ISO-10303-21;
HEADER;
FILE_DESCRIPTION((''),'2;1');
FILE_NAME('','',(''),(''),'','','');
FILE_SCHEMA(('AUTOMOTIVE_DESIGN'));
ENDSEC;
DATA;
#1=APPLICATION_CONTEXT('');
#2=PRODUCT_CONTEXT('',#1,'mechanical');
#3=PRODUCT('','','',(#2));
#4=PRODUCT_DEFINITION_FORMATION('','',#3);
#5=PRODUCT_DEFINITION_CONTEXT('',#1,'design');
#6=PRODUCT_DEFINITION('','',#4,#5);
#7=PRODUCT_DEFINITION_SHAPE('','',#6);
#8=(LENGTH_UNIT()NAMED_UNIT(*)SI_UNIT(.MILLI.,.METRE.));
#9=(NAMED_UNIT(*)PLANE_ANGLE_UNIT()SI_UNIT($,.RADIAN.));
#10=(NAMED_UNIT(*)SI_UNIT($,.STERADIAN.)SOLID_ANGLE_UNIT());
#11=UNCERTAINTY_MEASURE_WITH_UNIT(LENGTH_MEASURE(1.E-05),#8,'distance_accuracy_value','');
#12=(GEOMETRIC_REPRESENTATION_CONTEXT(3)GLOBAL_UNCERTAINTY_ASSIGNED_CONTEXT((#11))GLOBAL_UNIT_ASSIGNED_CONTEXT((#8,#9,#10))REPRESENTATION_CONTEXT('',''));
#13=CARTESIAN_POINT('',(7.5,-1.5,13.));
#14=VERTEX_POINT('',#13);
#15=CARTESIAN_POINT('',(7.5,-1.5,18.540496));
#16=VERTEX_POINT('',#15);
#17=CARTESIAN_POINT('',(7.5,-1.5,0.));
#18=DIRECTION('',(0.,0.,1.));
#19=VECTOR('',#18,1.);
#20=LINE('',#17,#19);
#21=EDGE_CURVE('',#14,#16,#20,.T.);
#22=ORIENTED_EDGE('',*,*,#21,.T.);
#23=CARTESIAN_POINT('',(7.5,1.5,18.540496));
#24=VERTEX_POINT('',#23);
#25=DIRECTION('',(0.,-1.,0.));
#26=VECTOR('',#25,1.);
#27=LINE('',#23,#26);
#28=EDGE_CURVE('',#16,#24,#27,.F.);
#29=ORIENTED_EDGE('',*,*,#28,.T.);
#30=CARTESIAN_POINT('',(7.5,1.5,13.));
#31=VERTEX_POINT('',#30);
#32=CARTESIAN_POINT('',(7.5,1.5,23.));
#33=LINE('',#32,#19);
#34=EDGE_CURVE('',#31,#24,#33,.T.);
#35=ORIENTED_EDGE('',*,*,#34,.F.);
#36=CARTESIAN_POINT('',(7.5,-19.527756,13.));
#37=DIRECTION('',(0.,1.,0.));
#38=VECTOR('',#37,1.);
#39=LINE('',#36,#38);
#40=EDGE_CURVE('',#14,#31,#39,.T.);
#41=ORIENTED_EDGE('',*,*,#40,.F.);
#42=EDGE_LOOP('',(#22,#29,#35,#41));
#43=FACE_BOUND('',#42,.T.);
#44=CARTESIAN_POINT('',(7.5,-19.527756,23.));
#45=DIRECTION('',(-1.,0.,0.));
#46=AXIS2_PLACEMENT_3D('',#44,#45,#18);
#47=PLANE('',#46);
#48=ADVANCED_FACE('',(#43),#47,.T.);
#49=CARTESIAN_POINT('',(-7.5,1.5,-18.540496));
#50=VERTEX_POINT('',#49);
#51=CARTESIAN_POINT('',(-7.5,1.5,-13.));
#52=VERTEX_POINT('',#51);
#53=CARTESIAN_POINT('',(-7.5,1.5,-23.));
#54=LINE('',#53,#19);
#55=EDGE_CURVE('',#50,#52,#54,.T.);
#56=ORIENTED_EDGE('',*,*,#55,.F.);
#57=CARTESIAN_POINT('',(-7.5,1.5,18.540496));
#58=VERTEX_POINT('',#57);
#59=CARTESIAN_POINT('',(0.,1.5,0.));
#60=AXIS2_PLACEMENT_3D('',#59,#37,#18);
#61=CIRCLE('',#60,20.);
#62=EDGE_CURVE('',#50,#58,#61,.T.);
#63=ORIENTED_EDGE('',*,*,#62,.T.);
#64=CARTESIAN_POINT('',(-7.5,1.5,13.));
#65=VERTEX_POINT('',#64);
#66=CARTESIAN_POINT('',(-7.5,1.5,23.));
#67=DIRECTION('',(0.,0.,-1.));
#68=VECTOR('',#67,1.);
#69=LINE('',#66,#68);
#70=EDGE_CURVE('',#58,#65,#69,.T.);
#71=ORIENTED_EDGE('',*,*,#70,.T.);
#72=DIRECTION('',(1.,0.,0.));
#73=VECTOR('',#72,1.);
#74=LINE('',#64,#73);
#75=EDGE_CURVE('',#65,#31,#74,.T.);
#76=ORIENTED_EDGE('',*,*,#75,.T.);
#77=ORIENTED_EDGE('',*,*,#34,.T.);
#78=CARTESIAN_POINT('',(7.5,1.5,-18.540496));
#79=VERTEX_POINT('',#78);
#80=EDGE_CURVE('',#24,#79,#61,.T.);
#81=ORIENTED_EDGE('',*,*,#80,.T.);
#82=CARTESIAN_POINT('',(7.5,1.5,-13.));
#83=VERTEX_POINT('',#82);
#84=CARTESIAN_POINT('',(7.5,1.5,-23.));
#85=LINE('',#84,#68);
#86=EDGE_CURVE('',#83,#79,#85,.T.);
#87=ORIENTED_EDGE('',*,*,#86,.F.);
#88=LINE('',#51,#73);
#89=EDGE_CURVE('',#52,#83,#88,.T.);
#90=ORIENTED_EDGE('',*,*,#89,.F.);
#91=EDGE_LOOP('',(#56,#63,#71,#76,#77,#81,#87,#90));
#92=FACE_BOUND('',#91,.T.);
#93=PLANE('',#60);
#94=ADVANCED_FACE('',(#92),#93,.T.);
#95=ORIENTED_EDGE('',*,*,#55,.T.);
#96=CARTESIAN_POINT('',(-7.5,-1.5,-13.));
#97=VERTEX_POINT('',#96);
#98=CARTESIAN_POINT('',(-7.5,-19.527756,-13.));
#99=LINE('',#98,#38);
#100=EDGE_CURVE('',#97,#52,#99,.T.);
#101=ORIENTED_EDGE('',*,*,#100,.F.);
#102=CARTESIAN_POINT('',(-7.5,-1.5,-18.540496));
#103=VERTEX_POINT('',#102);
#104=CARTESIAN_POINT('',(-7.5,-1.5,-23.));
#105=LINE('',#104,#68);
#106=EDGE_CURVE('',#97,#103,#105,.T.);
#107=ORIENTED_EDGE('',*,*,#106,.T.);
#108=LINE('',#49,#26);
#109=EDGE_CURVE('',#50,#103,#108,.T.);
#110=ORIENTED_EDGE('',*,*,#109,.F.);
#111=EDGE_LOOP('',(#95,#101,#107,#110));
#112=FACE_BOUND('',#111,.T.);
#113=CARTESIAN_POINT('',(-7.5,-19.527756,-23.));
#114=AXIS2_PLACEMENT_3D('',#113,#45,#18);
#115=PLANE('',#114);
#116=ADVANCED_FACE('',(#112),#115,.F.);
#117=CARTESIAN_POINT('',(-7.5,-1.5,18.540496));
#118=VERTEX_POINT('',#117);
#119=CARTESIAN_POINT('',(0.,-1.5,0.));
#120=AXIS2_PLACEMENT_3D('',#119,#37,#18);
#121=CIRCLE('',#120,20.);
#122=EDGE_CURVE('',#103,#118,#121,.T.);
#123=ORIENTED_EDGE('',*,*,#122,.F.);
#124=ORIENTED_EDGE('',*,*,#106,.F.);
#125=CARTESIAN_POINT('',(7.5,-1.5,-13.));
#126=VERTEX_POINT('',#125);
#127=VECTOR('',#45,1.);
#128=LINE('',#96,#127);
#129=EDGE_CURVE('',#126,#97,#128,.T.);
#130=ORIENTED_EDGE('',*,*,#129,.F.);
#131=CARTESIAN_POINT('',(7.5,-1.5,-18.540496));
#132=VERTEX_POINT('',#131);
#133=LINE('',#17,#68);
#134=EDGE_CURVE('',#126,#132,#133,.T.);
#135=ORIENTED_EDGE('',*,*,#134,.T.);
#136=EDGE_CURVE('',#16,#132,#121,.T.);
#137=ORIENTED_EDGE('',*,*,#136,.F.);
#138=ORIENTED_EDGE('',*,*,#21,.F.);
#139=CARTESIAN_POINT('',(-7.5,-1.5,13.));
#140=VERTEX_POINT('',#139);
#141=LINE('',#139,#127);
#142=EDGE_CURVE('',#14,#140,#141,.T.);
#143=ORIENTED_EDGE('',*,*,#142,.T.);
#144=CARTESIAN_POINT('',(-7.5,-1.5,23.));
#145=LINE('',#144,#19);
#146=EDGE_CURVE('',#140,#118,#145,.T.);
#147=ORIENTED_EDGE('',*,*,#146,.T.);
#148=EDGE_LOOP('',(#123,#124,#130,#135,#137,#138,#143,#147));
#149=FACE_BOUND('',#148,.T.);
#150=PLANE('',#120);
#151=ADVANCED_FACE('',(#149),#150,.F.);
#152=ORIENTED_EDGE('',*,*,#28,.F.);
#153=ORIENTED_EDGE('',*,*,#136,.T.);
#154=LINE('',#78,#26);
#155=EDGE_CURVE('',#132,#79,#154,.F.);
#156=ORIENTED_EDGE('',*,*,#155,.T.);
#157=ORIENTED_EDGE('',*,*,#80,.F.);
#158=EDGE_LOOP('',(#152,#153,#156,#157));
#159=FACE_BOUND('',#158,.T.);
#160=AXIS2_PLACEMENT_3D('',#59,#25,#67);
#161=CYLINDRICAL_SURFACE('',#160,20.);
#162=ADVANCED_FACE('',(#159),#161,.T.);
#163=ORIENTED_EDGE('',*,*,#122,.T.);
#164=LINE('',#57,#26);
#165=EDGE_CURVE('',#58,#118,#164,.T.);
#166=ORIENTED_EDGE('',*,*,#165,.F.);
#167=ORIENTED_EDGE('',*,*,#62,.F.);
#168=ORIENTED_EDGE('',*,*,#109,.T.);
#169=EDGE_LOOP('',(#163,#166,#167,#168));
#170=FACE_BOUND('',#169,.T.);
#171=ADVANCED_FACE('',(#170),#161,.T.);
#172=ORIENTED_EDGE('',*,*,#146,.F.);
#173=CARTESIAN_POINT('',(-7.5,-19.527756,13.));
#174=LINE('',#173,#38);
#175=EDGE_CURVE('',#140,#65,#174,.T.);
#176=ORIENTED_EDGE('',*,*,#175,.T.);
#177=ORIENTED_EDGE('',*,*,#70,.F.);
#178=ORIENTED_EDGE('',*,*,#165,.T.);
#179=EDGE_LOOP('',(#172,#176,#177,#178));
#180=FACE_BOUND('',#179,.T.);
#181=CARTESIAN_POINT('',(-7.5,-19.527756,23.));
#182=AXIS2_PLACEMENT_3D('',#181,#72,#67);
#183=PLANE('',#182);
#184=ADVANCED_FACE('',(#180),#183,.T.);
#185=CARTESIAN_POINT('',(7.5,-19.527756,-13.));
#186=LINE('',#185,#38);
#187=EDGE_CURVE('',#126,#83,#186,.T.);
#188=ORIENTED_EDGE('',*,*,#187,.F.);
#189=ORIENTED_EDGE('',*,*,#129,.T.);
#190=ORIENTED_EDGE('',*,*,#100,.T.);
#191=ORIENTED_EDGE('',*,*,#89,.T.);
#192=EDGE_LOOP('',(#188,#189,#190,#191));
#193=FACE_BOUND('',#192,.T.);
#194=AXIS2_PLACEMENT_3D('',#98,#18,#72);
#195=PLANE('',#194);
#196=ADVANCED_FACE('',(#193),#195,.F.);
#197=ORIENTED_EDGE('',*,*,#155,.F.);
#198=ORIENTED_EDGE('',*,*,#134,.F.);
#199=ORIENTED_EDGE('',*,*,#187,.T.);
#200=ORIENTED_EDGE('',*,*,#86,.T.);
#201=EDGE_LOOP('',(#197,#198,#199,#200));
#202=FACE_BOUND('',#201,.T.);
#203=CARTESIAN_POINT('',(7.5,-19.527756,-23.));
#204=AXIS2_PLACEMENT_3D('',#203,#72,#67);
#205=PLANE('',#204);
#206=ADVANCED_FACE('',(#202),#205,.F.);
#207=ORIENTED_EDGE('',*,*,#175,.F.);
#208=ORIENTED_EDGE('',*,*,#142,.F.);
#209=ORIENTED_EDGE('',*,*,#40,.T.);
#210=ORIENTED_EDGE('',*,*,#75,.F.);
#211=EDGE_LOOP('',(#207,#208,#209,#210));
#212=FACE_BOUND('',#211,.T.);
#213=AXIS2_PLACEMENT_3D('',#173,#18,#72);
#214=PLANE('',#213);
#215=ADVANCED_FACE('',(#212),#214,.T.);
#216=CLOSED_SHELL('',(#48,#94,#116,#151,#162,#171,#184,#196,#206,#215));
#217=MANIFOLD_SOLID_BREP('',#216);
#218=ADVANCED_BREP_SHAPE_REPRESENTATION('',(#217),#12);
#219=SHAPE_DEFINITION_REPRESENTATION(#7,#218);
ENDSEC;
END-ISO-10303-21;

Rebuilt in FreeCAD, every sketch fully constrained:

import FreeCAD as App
import Part
import Sketcher

V = App.Vector


def add_polygon(sketch, points):
    """Adds a closed chain of lines whose ends are joined by coincident constraints."""
    first, n = sketch.GeometryCount, len(points)
    for a, b in zip(points, points[1:] + points[:1]):
        sketch.addGeometry(Part.LineSegment(App.Vector(*a, 0), App.Vector(*b, 0)), False)
    for i in range(n):
        sketch.addConstraint(Sketcher.Constraint("Coincident", first + i, 2, first + (i + 1) % n, 1))

doc = App.newDocument("Part")
body = doc.addObject("PartDesign::Body", "Body")

# Sketch on XZ plane
sketch1 = body.newObject("Sketcher::SketchObject", "Sketch")
sketch1.AttachmentSupport = (doc.getObject("XZ_Plane"), [""])
sketch1.MapMode = "FlatFace"
sketch1.addGeometry(Part.Circle(V(0, 0, 0), V(0, 0, 1), 20), False)
sketch1.addConstraint(Sketcher.Constraint("Coincident", 0, 3, -1, 1))
sketch1.addConstraint(Sketcher.Constraint("Diameter", 0, 40.0))
pad1 = body.newObject("PartDesign::Pad", "Pad")
pad1.Profile = sketch1
pad1.Length = 3
pad1.Midplane = True

# Sketch on XZ plane
sketch2 = body.newObject("Sketcher::SketchObject", "Sketch001")
sketch2.AttachmentSupport = (doc.getObject("XZ_Plane"), [""])
sketch2.MapMode = "FlatFace"
sketch2.AttachmentOffset = App.Placement(V(0, 0, -1.5), App.Rotation())
add_polygon(sketch2, [(-8, -23), (-8, -13), (8, -13), (8, -23)])  # lines 0-3
sketch2.addConstraint(Sketcher.Constraint("Vertical", 0))
sketch2.addConstraint(Sketcher.Constraint("Horizontal", 1))
sketch2.addConstraint(Sketcher.Constraint("Vertical", 2))
sketch2.addConstraint(Sketcher.Constraint("Horizontal", 3))
sketch2.addConstraint(Sketcher.Constraint("DistanceX", 1, 1, 1, 2, 15.0))
sketch2.addConstraint(Sketcher.Constraint("DistanceY", 0, 1, 0, 2, 10.0))
sketch2.addConstraint(Sketcher.Constraint("DistanceY", 0, 2, -1, 1, 13.0))
sketch2.addConstraint(Sketcher.Constraint("DistanceX", 0, 2, -1, 1, 7.5))
pocket1 = body.newObject("PartDesign::Pocket", "Pocket")
pocket1.Profile = sketch2
pocket1.Length = 3
pocket1.Reversed = True
doc.recompute()

mirrored = body.newObject("PartDesign::Mirrored", "Mirrored")
mirrored.Originals = [pocket1]
mirrored.MirrorPlane = (doc.getObject("XY_Plane"), [""])
body.Tip = mirrored

doc.recompute()
